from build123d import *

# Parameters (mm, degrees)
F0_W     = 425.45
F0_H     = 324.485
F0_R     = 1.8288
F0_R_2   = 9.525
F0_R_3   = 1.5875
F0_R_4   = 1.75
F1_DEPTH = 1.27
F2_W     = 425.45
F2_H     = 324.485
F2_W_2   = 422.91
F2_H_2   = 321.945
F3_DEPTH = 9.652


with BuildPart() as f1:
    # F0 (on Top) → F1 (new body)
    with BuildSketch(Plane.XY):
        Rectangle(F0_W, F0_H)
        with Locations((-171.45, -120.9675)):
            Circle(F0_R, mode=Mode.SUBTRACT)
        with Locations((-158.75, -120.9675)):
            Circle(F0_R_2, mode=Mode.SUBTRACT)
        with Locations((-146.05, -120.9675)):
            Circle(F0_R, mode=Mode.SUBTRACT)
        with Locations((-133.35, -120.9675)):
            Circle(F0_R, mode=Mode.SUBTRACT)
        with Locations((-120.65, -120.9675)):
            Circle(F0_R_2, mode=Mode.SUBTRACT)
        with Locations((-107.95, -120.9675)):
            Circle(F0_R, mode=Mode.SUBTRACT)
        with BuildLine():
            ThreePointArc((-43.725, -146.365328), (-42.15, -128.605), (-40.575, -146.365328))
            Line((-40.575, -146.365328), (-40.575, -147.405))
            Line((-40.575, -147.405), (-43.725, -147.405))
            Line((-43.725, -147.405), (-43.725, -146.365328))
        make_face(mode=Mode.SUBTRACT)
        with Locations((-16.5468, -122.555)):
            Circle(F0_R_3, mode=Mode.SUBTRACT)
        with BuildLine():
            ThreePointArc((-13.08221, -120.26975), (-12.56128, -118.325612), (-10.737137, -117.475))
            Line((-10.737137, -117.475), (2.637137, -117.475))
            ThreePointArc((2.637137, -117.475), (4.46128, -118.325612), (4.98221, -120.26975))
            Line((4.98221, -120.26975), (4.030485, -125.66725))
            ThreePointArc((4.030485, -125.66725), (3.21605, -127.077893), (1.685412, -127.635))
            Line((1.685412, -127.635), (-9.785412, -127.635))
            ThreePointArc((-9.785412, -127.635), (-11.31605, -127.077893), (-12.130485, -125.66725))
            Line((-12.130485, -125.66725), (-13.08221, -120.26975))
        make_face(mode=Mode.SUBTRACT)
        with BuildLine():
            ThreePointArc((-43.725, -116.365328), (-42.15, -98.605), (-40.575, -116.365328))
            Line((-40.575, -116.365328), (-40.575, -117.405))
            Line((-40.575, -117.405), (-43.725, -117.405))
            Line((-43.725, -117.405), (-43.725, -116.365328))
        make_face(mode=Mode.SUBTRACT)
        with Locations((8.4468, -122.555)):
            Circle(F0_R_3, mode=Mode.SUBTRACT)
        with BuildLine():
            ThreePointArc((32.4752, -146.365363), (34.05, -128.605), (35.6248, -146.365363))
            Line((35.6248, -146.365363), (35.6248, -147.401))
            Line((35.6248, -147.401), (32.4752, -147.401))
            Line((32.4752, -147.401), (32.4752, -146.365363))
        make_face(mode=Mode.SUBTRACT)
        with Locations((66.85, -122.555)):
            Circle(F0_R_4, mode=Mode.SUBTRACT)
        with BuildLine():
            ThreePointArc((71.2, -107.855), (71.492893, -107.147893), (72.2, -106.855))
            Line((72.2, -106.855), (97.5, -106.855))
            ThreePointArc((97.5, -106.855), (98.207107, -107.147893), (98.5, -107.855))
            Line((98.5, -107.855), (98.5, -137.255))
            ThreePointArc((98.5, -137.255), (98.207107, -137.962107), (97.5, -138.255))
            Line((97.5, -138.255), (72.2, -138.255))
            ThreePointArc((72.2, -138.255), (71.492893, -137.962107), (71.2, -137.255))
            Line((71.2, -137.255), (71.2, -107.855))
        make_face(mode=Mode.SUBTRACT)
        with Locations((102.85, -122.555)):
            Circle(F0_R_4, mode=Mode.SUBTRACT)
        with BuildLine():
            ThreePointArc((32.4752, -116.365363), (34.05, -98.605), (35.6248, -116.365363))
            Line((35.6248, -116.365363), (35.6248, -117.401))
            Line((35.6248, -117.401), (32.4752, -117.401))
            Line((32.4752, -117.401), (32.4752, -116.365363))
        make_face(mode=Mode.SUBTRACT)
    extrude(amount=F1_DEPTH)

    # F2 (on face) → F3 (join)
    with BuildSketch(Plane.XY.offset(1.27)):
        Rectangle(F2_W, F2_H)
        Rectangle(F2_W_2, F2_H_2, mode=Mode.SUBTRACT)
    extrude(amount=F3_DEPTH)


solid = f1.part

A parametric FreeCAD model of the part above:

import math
import FreeCAD as App
import Part
import Sketcher

V = App.Vector
Q = App.Units.Quantity

doc = App.newDocument("Part")
body = doc.addObject("PartDesign::Body", "Body")

sketch1 = body.newObject("Sketcher::SketchObject", "Sketch")
sketch1.AttachmentSupport = (doc.getObject("XY_Plane"), [""])
sketch1.MapMode = "FlatFace"
sketch1.addGeometry(Part.LineSegment(V(-212.7, 162.2, 0), V(-212.7, -162.2, 0)), False)
sketch1.addGeometry(Part.LineSegment(V(-212.7, -162.2, 0), V(212.7, -162.2, 0)), False)
sketch1.addGeometry(Part.LineSegment(V(212.7, -162.2, 0), V(212.7, 162.2, 0)), False)
sketch1.addGeometry(Part.LineSegment(V(212.7, 162.2, 0), V(-212.7, 162.2, 0)), False)
sketch1.addGeometry(Part.LineSegment(V(-43.7, -147.4, 0), V(-43.7, -146.4, 0)), False)
sketch1.addGeometry(Part.ArcOfCircle(Part.Circle(V(-42.1, -137.6, 0), V(0, 0, 1), 9), math.radians(-80), math.radians(260)), False)
sketch1.addGeometry(Part.LineSegment(V(-40.6, -146.4, 0), V(-40.6, -147.4, 0)), False)
sketch1.addGeometry(Part.LineSegment(V(-40.6, -147.4, 0), V(-43.7, -147.4, 0)), False)
sketch1.addGeometry(Part.LineSegment(V(32.5, -147.4, 0), V(32.5, -146.4, 0)), False)
sketch1.addGeometry(Part.ArcOfCircle(Part.Circle(V(34, -137.6, 0), V(0, 0, 1), 8.9), math.radians(-80), math.radians(260)), False)
sketch1.addGeometry(Part.LineSegment(V(35.6, -146.4, 0), V(35.6, -147.4, 0)), False)
sketch1.addGeometry(Part.LineSegment(V(35.6, -147.4, 0), V(32.5, -147.4, 0)), False)
sketch1.addGeometry(Part.Circle(V(-171.4, -121, 0), V(0, 0, 1), 1.8), False)
sketch1.addGeometry(Part.Circle(V(-158.8, -121, 0), V(0, 0, 1), 9.5), False)
sketch1.addGeometry(Part.Circle(V(-146.1, -121, 0), V(0, 0, 1), 1.8), False)
sketch1.addGeometry(Part.Circle(V(-133.3, -121, 0), V(0, 0, 1), 1.8), False)
sketch1.addGeometry(Part.Circle(V(-120.7, -121, 0), V(0, 0, 1), 9.5), False)
sketch1.addGeometry(Part.Circle(V(-108, -121, 0), V(0, 0, 1), 1.8), False)
sketch1.addGeometry(Part.LineSegment(V(-43.7, -117.4, 0), V(-43.7, -116.4, 0)), False)
sketch1.addGeometry(Part.ArcOfCircle(Part.Circle(V(-42.1, -107.6, 0), V(0, 0, 1), 9), math.radians(-80), math.radians(260)), False)
sketch1.addGeometry(Part.LineSegment(V(-40.6, -116.4, 0), V(-40.6, -117.4, 0)), False)
sketch1.addGeometry(Part.LineSegment(V(-40.6, -117.4, 0), V(-43.7, -117.4, 0)), False)
sketch1.addGeometry(Part.Circle(V(-16.5, -122.6, 0), V(0, 0, 1), 1.6), False)
sketch1.addGeometry(Part.LineSegment(V(-12.1, -125.7, 0), V(-13.1, -120.3, 0)), False)
sketch1.addGeometry(Part.ArcOfCircle(Part.Circle(V(-10.7, -119.9, 0), V(0, 0, 1), 2.4), math.radians(90), math.radians(190)), False)
sketch1.addGeometry(Part.LineSegment(V(-10.7, -117.5, 0), V(2.6, -117.5, 0)), False)
sketch1.addGeometry(Part.ArcOfCircle(Part.Circle(V(2.6, -119.9, 0), V(0, 0, 1), 2.4), math.radians(-10), math.radians(90)), False)
sketch1.addGeometry(Part.LineSegment(V(5, -120.3, 0), V(4, -125.7, 0)), False)
sketch1.addGeometry(Part.ArcOfCircle(Part.Circle(V(1.7, -125.3, 0), V(0, 0, 1), 2.4), math.radians(-90), math.radians(-10)), False)
sketch1.addGeometry(Part.LineSegment(V(1.7, -127.6, 0), V(-9.8, -127.6, 0)), False)
sketch1.addGeometry(Part.ArcOfCircle(Part.Circle(V(-9.8, -125.3, 0), V(0, 0, 1), 2.4), math.radians(-170), math.radians(-90)), False)
sketch1.addGeometry(Part.Circle(V(8.4, -122.6, 0), V(0, 0, 1), 1.6), False)
sketch1.addGeometry(Part.Circle(V(66.8, -122.6, 0), V(0, 0, 1), 1.8), False)
sketch1.addGeometry(Part.LineSegment(V(71.2, -137.3, 0), V(71.2, -107.9, 0)), False)
sketch1.addGeometry(Part.ArcOfCircle(Part.Circle(V(72.2, -107.9, 0), V(0, 0, 1), 1), math.radians(90), math.radians(180)), False)
sketch1.addGeometry(Part.LineSegment(V(72.2, -106.9, 0), V(97.5, -106.9, 0)), False)
sketch1.addGeometry(Part.ArcOfCircle(Part.Circle(V(97.5, -107.9, 0), V(0, 0, 1), 1), math.radians(0), math.radians(90)), False)
sketch1.addGeometry(Part.LineSegment(V(98.5, -107.9, 0), V(98.5, -137.3, 0)), False)
sketch1.addGeometry(Part.ArcOfCircle(Part.Circle(V(97.5, -137.3, 0), V(0, 0, 1), 1), math.radians(-90), math.radians(0)), False)
sketch1.addGeometry(Part.LineSegment(V(97.5, -138.3, 0), V(72.2, -138.3, 0)), False)
sketch1.addGeometry(Part.ArcOfCircle(Part.Circle(V(72.2, -137.3, 0), V(0, 0, 1), 1), math.radians(180), math.radians(270)), False)
sketch1.addGeometry(Part.Circle(V(102.8, -122.6, 0), V(0, 0, 1), 1.8), False)
sketch1.addGeometry(Part.LineSegment(V(32.5, -117.4, 0), V(32.5, -116.4, 0)), False)
sketch1.addGeometry(Part.ArcOfCircle(Part.Circle(V(34, -107.6, 0), V(0, 0, 1), 8.9), math.radians(-80), math.radians(260)), False)
sketch1.addGeometry(Part.LineSegment(V(35.6, -116.4, 0), V(35.6, -117.4, 0)), False)
sketch1.addGeometry(Part.LineSegment(V(35.6, -117.4, 0), V(32.5, -117.4, 0)), False)
sketch1.addConstraint(Sketcher.Constraint("Coincident", 0, 2, 1, 1))
sketch1.addConstraint(Sketcher.Constraint("Coincident", 1, 2, 2, 1))
sketch1.addConstraint(Sketcher.Constraint("Coincident", 2, 2, 3, 1))
sketch1.addConstraint(Sketcher.Constraint("Coincident", 3, 2, 0, 1))
sketch1.addConstraint(Sketcher.Constraint("Coincident", 4, 2, 5, 2))
sketch1.addConstraint(Sketcher.Constraint("Coincident", 5, 1, 6, 1))
sketch1.addConstraint(Sketcher.Constraint("Coincident", 6, 2, 7, 1))
sketch1.addConstraint(Sketcher.Constraint("Coincident", 7, 2, 4, 1))
sketch1.addConstraint(Sketcher.Constraint("Coincident", 8, 2, 9, 2))
sketch1.addConstraint(Sketcher.Constraint("Coincident", 9, 1, 10, 1))
sketch1.addConstraint(Sketcher.Constraint("Coincident", 10, 2, 11, 1))
sketch1.addConstraint(Sketcher.Constraint("Coincident", 11, 2, 8, 1))
sketch1.addConstraint(Sketcher.Constraint("Coincident", 18, 2, 19, 2))
sketch1.addConstraint(Sketcher.Constraint("Coincident", 19, 1, 20, 1))
sketch1.addConstraint(Sketcher.Constraint("Coincident", 20, 2, 21, 1))
sketch1.addConstraint(Sketcher.Constraint("Coincident", 21, 2, 18, 1))
sketch1.addConstraint(Sketcher.Constraint("Tangent", 23, 2, 24, 2))
sketch1.addConstraint(Sketcher.Constraint("Tangent", 24, 1, 25, 1))
sketch1.addConstraint(Sketcher.Constraint("Tangent", 25, 2, 26, 2))
sketch1.addConstraint(Sketcher.Constraint("Tangent", 26, 1, 27, 1))
sketch1.addConstraint(Sketcher.Constraint("Tangent", 27, 2, 28, 2))
sketch1.addConstraint(Sketcher.Constraint("Tangent", 28, 1, 29, 1))
sketch1.addConstraint(Sketcher.Constraint("Tangent", 29, 2, 30, 2))
sketch1.addConstraint(Sketcher.Constraint("Tangent", 30, 1, 23, 1))
sketch1.addConstraint(Sketcher.Constraint("Tangent", 33, 2, 34, 2))
sketch1.addConstraint(Sketcher.Constraint("Tangent", 34, 1, 35, 1))
sketch1.addConstraint(Sketcher.Constraint("Tangent", 35, 2, 36, 2))
sketch1.addConstraint(Sketcher.Constraint("Tangent", 36, 1, 37, 1))
sketch1.addConstraint(Sketcher.Constraint("Tangent", 37, 2, 38, 2))
sketch1.addConstraint(Sketcher.Constraint("Tangent", 38, 1, 39, 1))
sketch1.addConstraint(Sketcher.Constraint("Tangent", 39, 2, 40, 2))
sketch1.addConstraint(Sketcher.Constraint("Tangent", 40, 1, 33, 1))
sketch1.addConstraint(Sketcher.Constraint("Coincident", 42, 2, 43, 2))
sketch1.addConstraint(Sketcher.Constraint("Coincident", 43, 1, 44, 1))
sketch1.addConstraint(Sketcher.Constraint("Coincident", 44, 2, 45, 1))
sketch1.addConstraint(Sketcher.Constraint("Coincident", 45, 2, 42, 1))
sketch1.addConstraint(Sketcher.Constraint("Vertical", 0))
sketch1.addConstraint(Sketcher.Constraint("Horizontal", 1))
sketch1.addConstraint(Sketcher.Constraint("Vertical", 2))
sketch1.addConstraint(Sketcher.Constraint("Horizontal", 3))
sketch1.addConstraint(Sketcher.Constraint("Vertical", 4))
sketch1.addConstraint(Sketcher.Constraint("Vertical", 6))
sketch1.addConstraint(Sketcher.Constraint("Horizontal", 7))
sketch1.addConstraint(Sketcher.Constraint("Vertical", 8))
sketch1.addConstraint(Sketcher.Constraint("Vertical", 10))
sketch1.addConstraint(Sketcher.Constraint("Horizontal", 11))
sketch1.addConstraint(Sketcher.Constraint("Vertical", 18))
sketch1.addConstraint(Sketcher.Constraint("Vertical", 20))
sketch1.addConstraint(Sketcher.Constraint("Horizontal", 21))
sketch1.addConstraint(Sketcher.Constraint("Horizontal", 25))
sketch1.addConstraint(Sketcher.Constraint("Horizontal", 29))
sketch1.addConstraint(Sketcher.Constraint("Vertical", 33))
sketch1.addConstraint(Sketcher.Constraint("Horizontal", 35))
sketch1.addConstraint(Sketcher.Constraint("Vertical", 37))
sketch1.addConstraint(Sketcher.Constraint("Horizontal", 39))
sketch1.addConstraint(Sketcher.Constraint("Vertical", 42))
sketch1.addConstraint(Sketcher.Constraint("Vertical", 44))
sketch1.addConstraint(Sketcher.Constraint("Horizontal", 45))
sketch1.addConstraint(Sketcher.Constraint("Equal", 5, 9))
sketch1.addConstraint(Sketcher.Constraint("Equal", 12, 14))
sketch1.addConstraint(Sketcher.Constraint("Equal", 14, 15))
sketch1.addConstraint(Sketcher.Constraint("Equal", 13, 16))
sketch1.addConstraint(Sketcher.Constraint("Equal", 15, 17))
sketch1.addConstraint(Sketcher.Constraint("Equal", 9, 19))
sketch1.addConstraint(Sketcher.Constraint("Equal", 24, 26))
sketch1.addConstraint(Sketcher.Constraint("Equal", 26, 28))
sketch1.addConstraint(Sketcher.Constraint("Equal", 28, 30))
sketch1.addConstraint(Sketcher.Constraint("Equal", 22, 31))
sketch1.addConstraint(Sketcher.Constraint("Equal", 34, 36))
sketch1.addConstraint(Sketcher.Constraint("Equal", 36, 38))
sketch1.addConstraint(Sketcher.Constraint("Equal", 38, 40))
sketch1.addConstraint(Sketcher.Constraint("Equal", 32, 41))
sketch1.addConstraint(Sketcher.Constraint("Equal", 19, 43))
sketch1.addConstraint(Sketcher.Constraint("Symmetric", 0, 2, 2, 2, -1, 1))
sketch1.addConstraint(Sketcher.Constraint("Horizontal", 5, 3, 9, 3))
sketch1.addConstraint(Sketcher.Constraint("Horizontal", 12, 3, 13, 3))
sketch1.addConstraint(Sketcher.Constraint("Horizontal", 13, 3, 14, 3))
sketch1.addConstraint(Sketcher.Constraint("Horizontal", 14, 3, 15, 3))
sketch1.addConstraint(Sketcher.Constraint("Horizontal", 15, 3, 16, 3))
sketch1.addConstraint(Sketcher.Constraint("Horizontal", 16, 3, 17, 3))
sketch1.addConstraint(Sketcher.Constraint("Horizontal", 22, 3, 31, 3))
sketch1.addConstraint(Sketcher.Constraint("Horizontal", 31, 3, 32, 3))
sketch1.addConstraint(Sketcher.Constraint("Horizontal", 32, 3, 41, 3))
sketch1.addConstraint(Sketcher.Constraint("Horizontal", 19, 3, 43, 3))
sketch1.addConstraint(Sketcher.Constraint("Horizontal", 4, 2, 5, 1))
sketch1.addConstraint(Sketcher.Constraint("Horizontal", 8, 2, 9, 1))
sketch1.addConstraint(Sketcher.Constraint("Horizontal", 18, 2, 19, 1))
sketch1.addConstraint(Sketcher.Constraint("Horizontal", 23, 2, 26, 1))
sketch1.addConstraint(Sketcher.Constraint("Horizontal", 42, 2, 43, 1))
sketch1.addConstraint(Sketcher.Constraint("Vertical", 5, 3, 19, 3))
sketch1.addConstraint(Sketcher.Constraint("Vertical", 9, 3, 43, 3))
sketch1.addConstraint(Sketcher.Constraint("Vertical", 7, 2, 18, 2))
sketch1.addConstraint(Sketcher.Constraint("Vertical", 11, 2, 42, 2))
sketch1.addConstraint(Sketcher.Constraint("Equal", 6, 18))
sketch1.addConstraint(Sketcher.Constraint("Equal", 10, 42))
sketch1.addConstraint(Sketcher.Constraint("Diameter", 13, Q("0.75 in")))
sketch1.addConstraint(Sketcher.Constraint("Diameter", 12, Q("0.144 in")))
sketch1.addConstraint(Sketcher.Constraint("Diameter", 22, Q("0.125 in")))
sketch1.addConstraint(Sketcher.Constraint("Angle", 23, Q("100.000001 deg")))
sketch1.addConstraint(Sketcher.Constraint("Radius", 24, Q("0.09375 in")))
sketch1.addConstraint(Sketcher.Constraint("DistanceX", 5, 3, 9, 3, Q("3 in")))
sketch1.addConstraint(Sketcher.Constraint("DistanceX", 12, 3, 14, 3, Q("1 in")))
sketch1.addConstraint(Sketcher.Constraint("DistanceX", 13, 3, 15, 3, Q("1 in")))
sketch1.addConstraint(Sketcher.Constraint("DistanceX", 14, 3, 16, 3, Q("1 in")))
sketch1.addConstraint(Sketcher.Constraint("DistanceX", 15, 3, 17, 3, Q("1 in")))
sketch1.addConstraint(Sketcher.Constraint("DistanceX", 1, 1, 1, 2, Q("16.75 in")))
sketch1.addConstraint(Sketcher.Constraint("DistanceX", 12, 3, 13, 3, Q("0.5 in")))
sketch1.addConstraint(Sketcher.Constraint("DistanceY", 22, 3, 24, 1, Q("0.2 in")))
sketch1.addConstraint(Sketcher.Constraint("DistanceY", 28, 1, 31, 3, Q("0.2 in")))
sketch1.addConstraint(Sketcher.Constraint("Diameter", 32, Q("3.5 mm")))
sketch1.addConstraint(Sketcher.Constraint("DistanceX", 11, 2, 11, 1, Q("0.124 in")))
sketch1.addConstraint(Sketcher.Constraint("DistanceY", 0, 2, 0, 1, Q("12.775 in")))
sketch1.addConstraint(Sketcher.Constraint("DistanceX", 12, 3, -1, 1, Q("6.75 in")))
sketch1.addConstraint(Sketcher.Constraint("Radius", 5, Q("8.95 mm")))
sketch1.addConstraint(Sketcher.Constraint("Radius", 34, Q("0.999999 mm")))
sketch1.addConstraint(Sketcher.Constraint("DistanceY", 12, 3, 3, 2, Q("11.15 in")))
sketch1.addConstraint(Sketcher.Constraint("DistanceX", 31, 3, 9, 1, Q("1.07 in")))
sketch1.addConstraint(Sketcher.Constraint("DistanceY", 22, 3, -1, 1, Q("4.825 in")))
sketch1.addConstraint(Sketcher.Constraint("DistanceX", 19, 3, 22, 3, Q("1.008 in")))
sketch1.addConstraint(Sketcher.Constraint("DistanceX", 7, 2, 7, 1, Q("3.15 mm")))
sketch1.addConstraint(Sketcher.Constraint("DistanceX", 35, 1, 35, 2, Q("25.3 mm")))
sketch1.addConstraint(Sketcher.Constraint("DistanceY", 33, 1, 33, 2, Q("29.4 mm")))
sketch1.addConstraint(Sketcher.Constraint("DistanceY", 4, 1, 4, 2, Q("1.039672 mm")))
sketch1.addConstraint(Sketcher.Constraint("DistanceX", 5, 3, -1, 1, Q("42.15 mm")))
sketch1.addConstraint(Sketcher.Constraint("DistanceY", 5, 3, -1, 1, Q("137.555 mm")))
sketch1.addConstraint(Sketcher.Constraint("DistanceY", 19, 3, -1, 1, Q("107.555 mm")))
sketch1.addConstraint(Sketcher.Constraint("DistanceX", -1, 1, 32, 3, Q("66.85 mm")))
sketch1.addConstraint(Sketcher.Constraint("DistanceX", -1, 1, 34, 3, Q("72.199999 mm")))
sketch1.addConstraint(Sketcher.Constraint("DistanceY", 34, 3, -1, 1, Q("107.854999 mm")))
sketch1.addConstraint(Sketcher.Constraint("DistanceX", -1, 1, 41, 3, Q("102.85 mm")))
sketch1.addConstraint(Sketcher.Constraint("DistanceY", 10, 2, -1, 1, Q("147.401 mm")))
sketch1.addConstraint(Sketcher.Constraint("DistanceX", 25, 1, 25, 2, Q("13.374274 mm")))
sketch1.addConstraint(Sketcher.Constraint("DistanceX", -1, 1, 28, 3, Q("1.685412 mm")))
pad1 = body.newObject("PartDesign::Pad", "Pad")
pad1.Profile = sketch1
pad1.Length = Q("0.05 in")

sketch2 = body.newObject("Sketcher::SketchObject", "Sketch001")
sketch2.AttachmentSupport = (doc.getObject("XY_Plane"), [""])
sketch2.MapMode = "FlatFace"
sketch2.AttachmentOffset = App.Placement(V(0, 0, 0.05 * 25.4), App.Rotation())
sketch2.addGeometry(Part.LineSegment(V(-213, 162, 0), V(-213, -162, 0)), False)
sketch2.addGeometry(Part.LineSegment(V(-213, -162, 0), V(213, -162, 0)), False)
sketch2.addGeometry(Part.LineSegment(V(213, -162, 0), V(213, 162, 0)), False)
sketch2.addGeometry(Part.LineSegment(V(213, 162, 0), V(-213, 162, 0)), False)
sketch2.addGeometry(Part.LineSegment(V(211, -161, 0), V(-211, -161, 0)), False)
sketch2.addGeometry(Part.LineSegment(V(-211, -161, 0), V(-211, 161, 0)), False)
sketch2.addGeometry(Part.LineSegment(V(-211, 161, 0), V(211, 161, 0)), False)
sketch2.addGeometry(Part.LineSegment(V(211, 161, 0), V(211, -161, 0)), False)
sketch2.addConstraint(Sketcher.Constraint("Coincident", 0, 2, 1, 1))
sketch2.addConstraint(Sketcher.Constraint("Coincident", 1, 2, 2, 1))
sketch2.addConstraint(Sketcher.Constraint("Coincident", 2, 2, 3, 1))
sketch2.addConstraint(Sketcher.Constraint("Coincident", 3, 2, 0, 1))
sketch2.addConstraint(Sketcher.Constraint("Coincident", 4, 2, 5, 1))
sketch2.addConstraint(Sketcher.Constraint("Coincident", 5, 2, 6, 1))
sketch2.addConstraint(Sketcher.Constraint("Coincident", 6, 2, 7, 1))
sketch2.addConstraint(Sketcher.Constraint("Coincident", 7, 2, 4, 1))
sketch2.addConstraint(Sketcher.Constraint("Vertical", 0))
sketch2.addConstraint(Sketcher.Constraint("Horizontal", 1))
sketch2.addConstraint(Sketcher.Constraint("Vertical", 2))
sketch2.addConstraint(Sketcher.Constraint("Horizontal", 3))
sketch2.addConstraint(Sketcher.Constraint("Horizontal", 4))
sketch2.addConstraint(Sketcher.Constraint("Vertical", 5))
sketch2.addConstraint(Sketcher.Constraint("Horizontal", 6))
sketch2.addConstraint(Sketcher.Constraint("Vertical", 7))
sketch2.addConstraint(Sketcher.Constraint("Symmetric", 0, 2, 2, 2, -1, 1))
sketch2.addConstraint(Sketcher.Constraint("Symmetric", 4, 2, 6, 2, -1, 1))
sketch2.addConstraint(Sketcher.Constraint("DistanceX", 1, 1, 1, 2, Q("16.75 in")))
sketch2.addConstraint(Sketcher.Constraint("DistanceX", 4, 2, 4, 1, Q("16.65 in")))
sketch2.addConstraint(Sketcher.Constraint("DistanceY", 0, 2, 0, 1, Q("12.775 in")))
sketch2.addConstraint(Sketcher.Constraint("DistanceY", 5, 1, 5, 2, Q("12.675 in")))
pad2 = body.newObject("PartDesign::Pad", "Pad001")
pad2.Profile = sketch2
pad2.Length = Q("0.38 in")

doc.recompute()
